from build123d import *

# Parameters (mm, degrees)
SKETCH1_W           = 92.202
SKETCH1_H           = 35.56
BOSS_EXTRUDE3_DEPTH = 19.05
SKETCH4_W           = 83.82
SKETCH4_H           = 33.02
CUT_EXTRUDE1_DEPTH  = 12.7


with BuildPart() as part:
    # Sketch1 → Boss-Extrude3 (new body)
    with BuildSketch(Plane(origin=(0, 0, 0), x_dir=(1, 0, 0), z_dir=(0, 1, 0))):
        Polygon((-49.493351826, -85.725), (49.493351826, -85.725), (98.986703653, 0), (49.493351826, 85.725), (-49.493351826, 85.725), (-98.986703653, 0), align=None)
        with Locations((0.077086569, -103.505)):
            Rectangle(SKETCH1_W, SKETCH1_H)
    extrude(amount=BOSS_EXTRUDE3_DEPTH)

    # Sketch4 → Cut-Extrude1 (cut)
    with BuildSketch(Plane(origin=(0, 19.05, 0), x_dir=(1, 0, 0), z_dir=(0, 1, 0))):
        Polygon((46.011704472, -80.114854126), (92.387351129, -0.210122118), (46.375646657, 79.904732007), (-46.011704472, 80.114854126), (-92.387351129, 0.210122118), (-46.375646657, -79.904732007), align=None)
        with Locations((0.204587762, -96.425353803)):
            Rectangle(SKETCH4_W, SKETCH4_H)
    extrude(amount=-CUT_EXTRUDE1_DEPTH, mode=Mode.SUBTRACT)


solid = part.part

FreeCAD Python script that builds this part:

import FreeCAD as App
import Part
import Sketcher

V = App.Vector
Q = App.Units.Quantity


def add_polygon(sketch, points):
    """Adds a closed chain of lines whose ends are joined by coincident constraints."""
    first, n = sketch.GeometryCount, len(points)
    for a, b in zip(points, points[1:] + points[:1]):
        sketch.addGeometry(Part.LineSegment(App.Vector(*a, 0), App.Vector(*b, 0)), False)
    for i in range(n):
        sketch.addConstraint(Sketcher.Constraint("Coincident", first + i, 2, first + (i + 1) % n, 1))

doc = App.newDocument("Part")
body = doc.addObject("PartDesign::Body", "Body")

sketch1 = body.newObject("Sketcher::SketchObject", "Sketch")
sketch1.AttachmentSupport = (doc.getObject("XZ_Plane"), [""])
sketch1.MapMode = "FlatFace"
add_polygon(sketch1, [(-49.493352, 85.725), (-46.023913, 85.725), (-46.023913, 121.285), (46.178087, 121.285), (46.178087, 85.725), (49.493352, 85.725), (98.986704, 0), (49.493352, -85.725), (-49.493352, -85.725), (-98.986704, 0)])
sketch1.addConstraint(Sketcher.Constraint("Horizontal", 0))
sketch1.addConstraint(Sketcher.Constraint("Vertical", 1))
sketch1.addConstraint(Sketcher.Constraint("Horizontal", 2))
sketch1.addConstraint(Sketcher.Constraint("Vertical", 3))
sketch1.addConstraint(Sketcher.Constraint("Horizontal", 4))
sketch1.addConstraint(Sketcher.Constraint("Horizontal", 7))
sketch1.addConstraint(Sketcher.Constraint("Symmetric", 4, 2, 7, 2, -1, 1))
sketch1.addConstraint(Sketcher.Constraint("Symmetric", 5, 2, 8, 2, -1, 1))
sketch1.addConstraint(Sketcher.Constraint("Symmetric", 6, 2, 9, 2, -1, 1))
sketch1.addConstraint(Sketcher.Constraint("PointOnObject", 5, 2, -1))
sketch1.addConstraint(Sketcher.Constraint("Vertical", 4, 2, 6, 2))
sketch1.addConstraint(Sketcher.Constraint("DistanceY", 1, 1, 1, 2, Q("1.4 in")))
sketch1.addConstraint(Sketcher.Constraint("Angle", 5, Q("-60 deg")))
sketch1.addConstraint(Sketcher.Constraint("DistanceX", 2, 1, 2, 2, Q("3.63 in")))
sketch1.addConstraint(Sketcher.Constraint("DistanceY", 6, 2, 4, 2, Q("6.75 in")))
sketch1.addConstraint(Sketcher.Constraint("DistanceX", 0, 1, 0, 2, Q("3.469438 mm")))
sketch1.addConstraint(Sketcher.Constraint("DistanceX", 4, 1, 4, 2, Q("3.315265 mm")))
pad1 = body.newObject("PartDesign::Pad", "Pad")
pad1.Profile = sketch1
pad1.Length = Q("0.75 in")
pad1.Reversed = True

sketch2 = body.newObject("Sketcher::SketchObject", "Sketch001")
sketch2.AttachmentSupport = (doc.getObject("XZ_Plane"), [""])
sketch2.MapMode = "FlatFace"
sketch2.AttachmentOffset = App.Placement(V(0, 0, -0.75 * 25.4), App.Rotation())
add_polygon(sketch2, [(42.114588, 80.105991), (46.011704, 80.114854), (92.387351, 0.210122), (46.375647, -79.904732), (-46.011704, -80.114854), (-92.387351, -0.210122), (-46.375647, 79.904732), (-41.705412, 79.915354), (-41.705412, 112.935354), (42.114588, 112.935354)])
sketch2.addConstraint(Sketcher.Constraint("Vertical", 7))
sketch2.addConstraint(Sketcher.Constraint("Horizontal", 8))
sketch2.addConstraint(Sketcher.Constraint("Vertical", 9))
sketch2.addConstraint(Sketcher.Constraint("Symmetric", 0, 2, 3, 2, -1, 1))
sketch2.addConstraint(Sketcher.Constraint("Symmetric", 1, 2, 4, 2, -1, 1))
sketch2.addConstraint(Sketcher.Constraint("Symmetric", 2, 2, 5, 2, -1, 1))
sketch2.addConstraint(Sketcher.Constraint("Parallel", 0, 3))
sketch2.addConstraint(Sketcher.Constraint("Parallel", 3, 6))
sketch2.addConstraint(Sketcher.Constraint("Equal", 1, 2))
sketch2.addConstraint(Sketcher.Constraint("Equal", 2, 3))
sketch2.addConstraint(Sketcher.Constraint("DistanceX", 8, 1, 8, 2, Q("3.3 in")))
sketch2.addConstraint(Sketcher.Constraint("DistanceY", 7, 1, 7, 2, Q("1.3 in")))
sketch2.addConstraint(Sketcher.Constraint("DistanceY", 6, 2, 0, 2, Q("0.1995 mm")))
sketch2.addConstraint(Sketcher.Constraint("Distance", 1, Q("92.38759 mm")))
sketch2.addConstraint(Sketcher.Constraint("DistanceX", -1, 1, 1, 2, Q("92.387351 mm")))
sketch2.addConstraint(Sketcher.Constraint("DistanceX", 3, 2, 0, 2, Q("92.023409 mm")))
sketch2.addConstraint(Sketcher.Constraint("DistanceX", 4, 2, 6, 2, Q("50.681939 mm")))
pocket1 = body.newObject("PartDesign::Pocket", "Pocket")
pocket1.Profile = sketch2
pocket1.Length = Q("0.5 in")
pocket1.Reversed = True

doc.recompute()
